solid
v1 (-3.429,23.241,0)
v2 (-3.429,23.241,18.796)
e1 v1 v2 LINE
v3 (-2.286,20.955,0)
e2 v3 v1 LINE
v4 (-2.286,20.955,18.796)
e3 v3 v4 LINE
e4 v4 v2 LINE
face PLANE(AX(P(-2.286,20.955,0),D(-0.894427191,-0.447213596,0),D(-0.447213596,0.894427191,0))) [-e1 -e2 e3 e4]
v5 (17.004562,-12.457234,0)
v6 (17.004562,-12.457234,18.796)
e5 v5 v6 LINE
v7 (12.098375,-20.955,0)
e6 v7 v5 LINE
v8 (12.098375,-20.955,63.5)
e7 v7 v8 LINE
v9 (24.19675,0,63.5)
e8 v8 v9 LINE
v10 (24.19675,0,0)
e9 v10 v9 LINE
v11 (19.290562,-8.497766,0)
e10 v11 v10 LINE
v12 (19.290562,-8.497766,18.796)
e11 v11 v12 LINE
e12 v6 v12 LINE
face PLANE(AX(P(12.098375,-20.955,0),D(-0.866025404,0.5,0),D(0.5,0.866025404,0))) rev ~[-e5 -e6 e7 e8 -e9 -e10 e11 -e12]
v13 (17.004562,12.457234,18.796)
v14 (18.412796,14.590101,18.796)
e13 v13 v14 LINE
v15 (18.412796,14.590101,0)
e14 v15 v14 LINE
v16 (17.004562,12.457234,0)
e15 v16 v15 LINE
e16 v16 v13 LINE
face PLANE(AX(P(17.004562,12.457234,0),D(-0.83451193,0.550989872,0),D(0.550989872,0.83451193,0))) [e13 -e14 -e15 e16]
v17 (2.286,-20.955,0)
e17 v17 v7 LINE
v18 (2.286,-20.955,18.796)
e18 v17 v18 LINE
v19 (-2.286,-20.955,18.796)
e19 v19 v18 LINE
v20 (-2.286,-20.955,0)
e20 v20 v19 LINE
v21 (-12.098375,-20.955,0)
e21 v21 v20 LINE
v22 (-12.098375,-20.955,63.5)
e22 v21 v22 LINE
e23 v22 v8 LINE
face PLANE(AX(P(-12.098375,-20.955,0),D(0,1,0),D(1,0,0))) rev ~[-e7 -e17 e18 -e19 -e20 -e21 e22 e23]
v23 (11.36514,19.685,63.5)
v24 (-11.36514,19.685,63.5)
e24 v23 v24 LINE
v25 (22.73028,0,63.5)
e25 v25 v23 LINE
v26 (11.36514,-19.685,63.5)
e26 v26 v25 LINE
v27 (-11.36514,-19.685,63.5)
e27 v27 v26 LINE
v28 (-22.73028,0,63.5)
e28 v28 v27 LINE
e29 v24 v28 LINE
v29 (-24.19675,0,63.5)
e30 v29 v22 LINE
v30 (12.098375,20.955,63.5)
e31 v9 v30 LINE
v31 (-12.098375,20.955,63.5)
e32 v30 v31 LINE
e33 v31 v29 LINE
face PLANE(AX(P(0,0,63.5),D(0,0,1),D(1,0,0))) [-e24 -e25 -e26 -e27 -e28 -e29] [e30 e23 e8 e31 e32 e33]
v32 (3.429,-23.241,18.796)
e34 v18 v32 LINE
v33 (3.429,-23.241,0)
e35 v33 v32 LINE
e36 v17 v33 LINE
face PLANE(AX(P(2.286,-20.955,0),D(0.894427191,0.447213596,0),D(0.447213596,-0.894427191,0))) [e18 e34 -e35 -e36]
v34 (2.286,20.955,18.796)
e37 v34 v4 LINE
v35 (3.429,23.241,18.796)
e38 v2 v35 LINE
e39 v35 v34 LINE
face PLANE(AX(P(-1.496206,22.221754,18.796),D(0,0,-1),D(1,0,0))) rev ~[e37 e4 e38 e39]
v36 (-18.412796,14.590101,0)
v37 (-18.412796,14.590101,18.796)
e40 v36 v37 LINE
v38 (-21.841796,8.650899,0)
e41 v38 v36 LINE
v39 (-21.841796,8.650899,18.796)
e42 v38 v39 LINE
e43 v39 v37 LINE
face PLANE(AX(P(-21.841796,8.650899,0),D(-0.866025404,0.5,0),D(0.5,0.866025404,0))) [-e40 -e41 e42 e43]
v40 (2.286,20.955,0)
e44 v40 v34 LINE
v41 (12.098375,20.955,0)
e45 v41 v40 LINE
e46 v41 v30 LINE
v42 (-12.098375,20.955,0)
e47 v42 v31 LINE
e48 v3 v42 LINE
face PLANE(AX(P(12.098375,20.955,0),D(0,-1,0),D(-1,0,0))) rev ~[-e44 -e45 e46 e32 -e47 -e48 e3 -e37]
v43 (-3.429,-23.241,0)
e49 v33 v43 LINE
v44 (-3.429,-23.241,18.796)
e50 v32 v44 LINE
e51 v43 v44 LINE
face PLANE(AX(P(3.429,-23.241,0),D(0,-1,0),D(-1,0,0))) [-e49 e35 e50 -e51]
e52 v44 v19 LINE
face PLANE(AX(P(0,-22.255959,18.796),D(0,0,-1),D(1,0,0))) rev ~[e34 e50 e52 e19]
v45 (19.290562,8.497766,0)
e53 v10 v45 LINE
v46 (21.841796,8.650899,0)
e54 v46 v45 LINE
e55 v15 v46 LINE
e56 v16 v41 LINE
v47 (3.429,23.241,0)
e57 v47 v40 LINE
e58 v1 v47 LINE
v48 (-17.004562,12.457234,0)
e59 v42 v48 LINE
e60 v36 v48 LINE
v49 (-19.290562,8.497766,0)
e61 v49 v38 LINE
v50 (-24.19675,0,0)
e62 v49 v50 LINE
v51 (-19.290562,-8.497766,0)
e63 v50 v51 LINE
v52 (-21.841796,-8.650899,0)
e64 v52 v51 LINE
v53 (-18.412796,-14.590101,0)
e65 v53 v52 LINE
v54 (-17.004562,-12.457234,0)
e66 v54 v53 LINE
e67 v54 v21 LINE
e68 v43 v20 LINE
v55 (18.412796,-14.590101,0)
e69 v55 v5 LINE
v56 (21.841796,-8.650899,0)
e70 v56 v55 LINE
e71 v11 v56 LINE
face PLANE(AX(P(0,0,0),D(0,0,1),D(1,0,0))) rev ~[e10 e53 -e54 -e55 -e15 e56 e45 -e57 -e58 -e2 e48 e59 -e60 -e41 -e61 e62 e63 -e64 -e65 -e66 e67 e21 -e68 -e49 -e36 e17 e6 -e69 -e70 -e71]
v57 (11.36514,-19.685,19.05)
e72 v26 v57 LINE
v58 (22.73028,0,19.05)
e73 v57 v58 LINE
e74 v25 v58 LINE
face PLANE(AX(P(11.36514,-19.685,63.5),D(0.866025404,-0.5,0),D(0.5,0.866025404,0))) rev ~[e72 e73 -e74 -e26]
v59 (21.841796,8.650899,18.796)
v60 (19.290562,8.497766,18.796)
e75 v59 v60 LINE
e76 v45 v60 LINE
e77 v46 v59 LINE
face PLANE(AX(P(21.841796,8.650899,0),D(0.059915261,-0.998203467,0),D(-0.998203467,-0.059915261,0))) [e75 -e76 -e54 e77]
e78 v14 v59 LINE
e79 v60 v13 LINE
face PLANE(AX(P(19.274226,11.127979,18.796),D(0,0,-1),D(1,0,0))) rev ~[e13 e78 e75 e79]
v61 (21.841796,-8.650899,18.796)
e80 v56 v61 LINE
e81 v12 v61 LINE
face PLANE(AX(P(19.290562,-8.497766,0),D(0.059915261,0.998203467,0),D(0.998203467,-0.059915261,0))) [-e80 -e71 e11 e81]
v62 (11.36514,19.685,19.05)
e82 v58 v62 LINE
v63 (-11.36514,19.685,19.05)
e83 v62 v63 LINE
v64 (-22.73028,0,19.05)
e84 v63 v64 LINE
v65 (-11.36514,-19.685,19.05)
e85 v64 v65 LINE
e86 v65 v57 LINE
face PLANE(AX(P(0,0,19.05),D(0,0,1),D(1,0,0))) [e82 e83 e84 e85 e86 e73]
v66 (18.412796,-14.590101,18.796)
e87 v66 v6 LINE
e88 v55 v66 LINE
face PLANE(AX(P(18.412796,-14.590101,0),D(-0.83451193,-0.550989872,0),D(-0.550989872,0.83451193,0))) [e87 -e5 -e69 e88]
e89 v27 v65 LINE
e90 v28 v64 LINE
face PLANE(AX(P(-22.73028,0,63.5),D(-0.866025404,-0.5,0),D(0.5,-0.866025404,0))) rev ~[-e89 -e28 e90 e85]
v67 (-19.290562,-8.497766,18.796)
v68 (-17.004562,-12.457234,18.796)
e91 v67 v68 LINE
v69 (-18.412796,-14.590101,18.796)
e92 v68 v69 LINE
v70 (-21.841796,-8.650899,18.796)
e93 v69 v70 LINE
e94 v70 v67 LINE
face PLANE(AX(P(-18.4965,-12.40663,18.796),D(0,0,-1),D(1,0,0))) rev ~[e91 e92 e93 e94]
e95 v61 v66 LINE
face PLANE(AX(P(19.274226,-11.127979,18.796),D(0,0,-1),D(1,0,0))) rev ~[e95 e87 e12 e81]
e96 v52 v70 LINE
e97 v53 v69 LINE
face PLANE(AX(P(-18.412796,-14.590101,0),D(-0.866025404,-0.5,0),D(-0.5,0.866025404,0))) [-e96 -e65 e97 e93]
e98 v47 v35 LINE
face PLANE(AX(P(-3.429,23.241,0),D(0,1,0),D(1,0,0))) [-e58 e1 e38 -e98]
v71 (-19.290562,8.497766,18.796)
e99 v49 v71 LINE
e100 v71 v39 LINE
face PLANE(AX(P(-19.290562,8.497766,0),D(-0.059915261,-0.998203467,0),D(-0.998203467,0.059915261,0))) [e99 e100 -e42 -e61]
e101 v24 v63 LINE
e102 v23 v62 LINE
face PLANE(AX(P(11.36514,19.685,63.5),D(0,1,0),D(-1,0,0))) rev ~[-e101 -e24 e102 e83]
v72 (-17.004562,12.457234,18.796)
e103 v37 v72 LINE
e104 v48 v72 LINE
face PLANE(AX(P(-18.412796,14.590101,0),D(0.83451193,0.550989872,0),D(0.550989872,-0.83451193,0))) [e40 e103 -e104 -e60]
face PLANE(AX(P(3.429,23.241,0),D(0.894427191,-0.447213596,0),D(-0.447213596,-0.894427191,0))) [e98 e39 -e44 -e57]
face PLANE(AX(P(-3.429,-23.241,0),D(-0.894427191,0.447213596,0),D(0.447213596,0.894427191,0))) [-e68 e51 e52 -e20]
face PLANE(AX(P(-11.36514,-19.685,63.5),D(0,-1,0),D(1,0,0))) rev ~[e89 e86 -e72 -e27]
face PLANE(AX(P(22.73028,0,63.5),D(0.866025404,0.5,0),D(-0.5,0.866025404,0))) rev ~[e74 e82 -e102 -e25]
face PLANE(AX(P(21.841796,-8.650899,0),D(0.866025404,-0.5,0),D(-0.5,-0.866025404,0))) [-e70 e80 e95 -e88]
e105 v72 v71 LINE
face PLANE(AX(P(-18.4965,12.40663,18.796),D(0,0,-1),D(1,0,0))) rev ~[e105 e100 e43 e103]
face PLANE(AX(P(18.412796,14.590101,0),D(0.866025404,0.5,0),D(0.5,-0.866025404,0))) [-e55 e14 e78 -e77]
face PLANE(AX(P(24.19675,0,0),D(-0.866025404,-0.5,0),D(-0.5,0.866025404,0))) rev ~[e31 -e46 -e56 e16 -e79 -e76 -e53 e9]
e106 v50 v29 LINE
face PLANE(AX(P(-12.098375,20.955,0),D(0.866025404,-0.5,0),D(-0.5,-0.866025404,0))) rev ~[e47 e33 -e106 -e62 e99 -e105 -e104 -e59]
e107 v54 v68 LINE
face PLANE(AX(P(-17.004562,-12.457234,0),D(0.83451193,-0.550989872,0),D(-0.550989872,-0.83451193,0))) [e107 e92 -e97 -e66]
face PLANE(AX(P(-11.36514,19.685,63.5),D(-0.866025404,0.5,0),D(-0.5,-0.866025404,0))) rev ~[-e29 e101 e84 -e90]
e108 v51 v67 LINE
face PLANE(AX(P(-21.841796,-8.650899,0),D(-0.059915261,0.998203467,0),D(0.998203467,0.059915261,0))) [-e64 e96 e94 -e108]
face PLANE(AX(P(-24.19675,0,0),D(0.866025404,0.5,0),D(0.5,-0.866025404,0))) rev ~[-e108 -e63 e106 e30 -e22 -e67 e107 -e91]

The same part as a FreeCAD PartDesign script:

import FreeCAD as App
import Part
import Sketcher
Q = App.Units.Quantity


def add_polygon(sketch, points):
    """Adds a closed chain of lines whose ends are joined by coincident constraints."""
    first, n = sketch.GeometryCount, len(points)
    for a, b in zip(points, points[1:] + points[:1]):
        sketch.addGeometry(Part.LineSegment(App.Vector(*a, 0), App.Vector(*b, 0)), False)
    for i in range(n):
        sketch.addConstraint(Sketcher.Constraint("Coincident", first + i, 2, first + (i + 1) % n, 1))

doc = App.newDocument("Part")
body = doc.addObject("PartDesign::Body", "Body")

sketch1 = body.newObject("Sketcher::SketchObject", "Sketch")
sketch1.AttachmentSupport = (doc.getObject("XY_Plane"), [""])
sketch1.MapMode = "FlatFace"
add_polygon(sketch1, [(-12, -21), (12, -21), (24, 0), (12, 21), (-12, 21), (-24, 0)])
sketch1.addConstraint(Sketcher.Constraint("Horizontal", 0))
sketch1.addConstraint(Sketcher.Constraint("Horizontal", 3))
sketch1.addConstraint(Sketcher.Constraint("Symmetric", 0, 2, 3, 2, -1, 1))
sketch1.addConstraint(Sketcher.Constraint("Symmetric", 1, 2, 4, 2, -1, 1))
sketch1.addConstraint(Sketcher.Constraint("PointOnObject", 1, 2, -1))
sketch1.addConstraint(Sketcher.Constraint("Parallel", 2, 5))
sketch1.addConstraint(Sketcher.Constraint("Vertical", 0, 2, 2, 2))
sketch1.addConstraint(Sketcher.Constraint("Angle", 1, Q("60 deg")))
sketch1.addConstraint(Sketcher.Constraint("DistanceY", 0, 2, 2, 2, Q("1.65 in")))
sketch1.addConstraint(Sketcher.Constraint("DistanceX", 0, 1, 0, 2, Q("24.19675 mm")))
pad1 = body.newObject("PartDesign::Pad", "Pad")
pad1.Profile = sketch1
pad1.Length = Q("2.5 in")

sketch2 = body.newObject("Sketcher::SketchObject", "Sketch001")
sketch2.AttachmentSupport = (doc.getObject("XY_Plane"), [""])
sketch2.MapMode = "FlatFace"
sketch2.AttachmentOffset = App.Placement(App.Vector(0, 0, 2.5 * 25.4), App.Rotation())
add_polygon(sketch2, [(-11, -20), (11, -20), (23, 0), (11, 20), (-11, 20), (-23, 0)])
sketch2.addConstraint(Sketcher.Constraint("Horizontal", 0))
sketch2.addConstraint(Sketcher.Constraint("Horizontal", 3))
sketch2.addConstraint(Sketcher.Constraint("Symmetric", 0, 2, 3, 2, -1, 1))
sketch2.addConstraint(Sketcher.Constraint("Symmetric", 1, 2, 4, 2, -1, 1))
sketch2.addConstraint(Sketcher.Constraint("PointOnObject", 1, 2, -1))
sketch2.addConstraint(Sketcher.Constraint("Parallel", 2, 5))
sketch2.addConstraint(Sketcher.Constraint("Vertical", 0, 2, 2, 2))
sketch2.addConstraint(Sketcher.Constraint("Angle", 1, Q("60 deg")))
sketch2.addConstraint(Sketcher.Constraint("DistanceY", 0, 2, 2, 2, Q("1.55 in")))
sketch2.addConstraint(Sketcher.Constraint("DistanceX", 0, 1, 0, 2, Q("22.73028 mm")))
pocket1 = body.newObject("PartDesign::Pocket", "Pocket")
pocket1.Profile = sketch2
pocket1.Length = Q("1.75 in")

sketch3 = body.newObject("Sketcher::SketchObject", "Sketch002")
sketch3.AttachmentSupport = (doc.getObject("XY_Plane"), [""])
sketch3.MapMode = "FlatFace"
add_polygon(sketch3, [(-2.3, -21), (2.3, -21), (3.4, -23.2), (-3.4, -23.2)])
add_polygon(sketch3, [(-17, -12.5), (-18.4, -14.6), (-21.8, -8.7), (-19.3, -8.5)])
add_polygon(sketch3, [(-17, 12.5), (-19.3, 8.5), (-21.8, 8.7), (-18.4, 14.6)])
add_polygon(sketch3, [(-2.3, 21), (-3.4, 23.2), (3.4, 23.2), (2.3, 21)])
add_polygon(sketch3, [(19.3, 8.5), (17, 12.5), (18.4, 14.6), (21.8, 8.7)])
add_polygon(sketch3, [(17, -12.5), (19.3, -8.5), (21.8, -8.7), (18.4, -14.6)])
sketch3.addConstraint(Sketcher.Constraint("Horizontal", 0))
sketch3.addConstraint(Sketcher.Constraint("Horizontal", 2))
sketch3.addConstraint(Sketcher.Constraint("Horizontal", 13))
sketch3.addConstraint(Sketcher.Constraint("Horizontal", 15))
sketch3.addConstraint(Sketcher.Constraint("Symmetric", 1, 2, 12, 2, -1, 1))
sketch3.addConstraint(Sketcher.Constraint("Symmetric", 3, 2, 14, 2, -1, 1))
sketch3.addConstraint(Sketcher.Constraint("Symmetric", 7, 2, 16, 2, -1, 1))
sketch3.addConstraint(Sketcher.Constraint("Symmetric", 4, 2, 17, 2, -1, 1))
sketch3.addConstraint(Sketcher.Constraint("Symmetric", 5, 2, 18, 2, -1, 1))
sketch3.addConstraint(Sketcher.Constraint("Symmetric", 6, 2, 19, 2, -1, 1))
sketch3.addConstraint(Sketcher.Constraint("Symmetric", 8, 2, 20, 2, -1, 1))
sketch3.addConstraint(Sketcher.Constraint("Symmetric", 9, 2, 21, 2, -1, 1))
sketch3.addConstraint(Sketcher.Constraint("Symmetric", 10, 2, 22, 2, -1, 1))
sketch3.addConstraint(Sketcher.Constraint("Symmetric", 11, 2, 23, 2, -1, 1))
sketch3.addConstraint(Sketcher.Constraint("Symmetric", 11, 2, 16, 2, -2))
sketch3.addConstraint(Sketcher.Constraint("Symmetric", 10, 2, 17, 2, -2))
sketch3.addConstraint(Sketcher.Constraint("Symmetric", 9, 2, 18, 2, -2))
sketch3.addConstraint(Sketcher.Constraint("Symmetric", 8, 2, 19, 2, -2))
sketch3.addConstraint(Sketcher.Constraint("Parallel", 5, 7))
sketch3.addConstraint(Sketcher.Constraint("Parallel", 1, 12))
sketch3.addConstraint(Sketcher.Constraint("Parallel", 3, 14))
sketch3.addConstraint(Sketcher.Constraint("Vertical", 2, 2, 12, 2))
sketch3.addConstraint(Sketcher.Constraint("Vertical", 0, 2, 14, 2))
sketch3.addConstraint(Sketcher.Constraint("Equal", 3, 4))
sketch3.addConstraint(Sketcher.Constraint("Equal", 4, 6))
sketch3.addConstraint(Sketcher.Constraint("Angle", 5, Q("120 deg")))
sketch3.addConstraint(Sketcher.Constraint("DistanceX", 0, 1, 0, 2, Q("0.18 in")))
sketch3.addConstraint(Sketcher.Constraint("DistanceX", 2, 2, 2, 1, Q("0.27 in")))
sketch3.addConstraint(Sketcher.Constraint("Distance", 5, Q("0.27 in")))
sketch3.addConstraint(Sketcher.Constraint("Distance", 7, Q("0.18 in")))
sketch3.addConstraint(Sketcher.Constraint("DistanceY", 1, 2, 0, 2, Q("0.09 in")))
sketch3.addConstraint(Sketcher.Constraint("DistanceY", 0, 2, -1, 1, Q("0.825 in")))
sketch3.addConstraint(Sketcher.Constraint("DistanceY", 7, 2, 8, 2, Q("0.825 in")))
sketch3.addConstraint(Sketcher.Constraint("DistanceX", 4, 2, -1, 1, Q("18.412796 mm")))
pad2 = body.newObject("PartDesign::Pad", "Pad001")
pad2.Profile = sketch3
pad2.Length = Q("0.74 in")

doc.recompute()
